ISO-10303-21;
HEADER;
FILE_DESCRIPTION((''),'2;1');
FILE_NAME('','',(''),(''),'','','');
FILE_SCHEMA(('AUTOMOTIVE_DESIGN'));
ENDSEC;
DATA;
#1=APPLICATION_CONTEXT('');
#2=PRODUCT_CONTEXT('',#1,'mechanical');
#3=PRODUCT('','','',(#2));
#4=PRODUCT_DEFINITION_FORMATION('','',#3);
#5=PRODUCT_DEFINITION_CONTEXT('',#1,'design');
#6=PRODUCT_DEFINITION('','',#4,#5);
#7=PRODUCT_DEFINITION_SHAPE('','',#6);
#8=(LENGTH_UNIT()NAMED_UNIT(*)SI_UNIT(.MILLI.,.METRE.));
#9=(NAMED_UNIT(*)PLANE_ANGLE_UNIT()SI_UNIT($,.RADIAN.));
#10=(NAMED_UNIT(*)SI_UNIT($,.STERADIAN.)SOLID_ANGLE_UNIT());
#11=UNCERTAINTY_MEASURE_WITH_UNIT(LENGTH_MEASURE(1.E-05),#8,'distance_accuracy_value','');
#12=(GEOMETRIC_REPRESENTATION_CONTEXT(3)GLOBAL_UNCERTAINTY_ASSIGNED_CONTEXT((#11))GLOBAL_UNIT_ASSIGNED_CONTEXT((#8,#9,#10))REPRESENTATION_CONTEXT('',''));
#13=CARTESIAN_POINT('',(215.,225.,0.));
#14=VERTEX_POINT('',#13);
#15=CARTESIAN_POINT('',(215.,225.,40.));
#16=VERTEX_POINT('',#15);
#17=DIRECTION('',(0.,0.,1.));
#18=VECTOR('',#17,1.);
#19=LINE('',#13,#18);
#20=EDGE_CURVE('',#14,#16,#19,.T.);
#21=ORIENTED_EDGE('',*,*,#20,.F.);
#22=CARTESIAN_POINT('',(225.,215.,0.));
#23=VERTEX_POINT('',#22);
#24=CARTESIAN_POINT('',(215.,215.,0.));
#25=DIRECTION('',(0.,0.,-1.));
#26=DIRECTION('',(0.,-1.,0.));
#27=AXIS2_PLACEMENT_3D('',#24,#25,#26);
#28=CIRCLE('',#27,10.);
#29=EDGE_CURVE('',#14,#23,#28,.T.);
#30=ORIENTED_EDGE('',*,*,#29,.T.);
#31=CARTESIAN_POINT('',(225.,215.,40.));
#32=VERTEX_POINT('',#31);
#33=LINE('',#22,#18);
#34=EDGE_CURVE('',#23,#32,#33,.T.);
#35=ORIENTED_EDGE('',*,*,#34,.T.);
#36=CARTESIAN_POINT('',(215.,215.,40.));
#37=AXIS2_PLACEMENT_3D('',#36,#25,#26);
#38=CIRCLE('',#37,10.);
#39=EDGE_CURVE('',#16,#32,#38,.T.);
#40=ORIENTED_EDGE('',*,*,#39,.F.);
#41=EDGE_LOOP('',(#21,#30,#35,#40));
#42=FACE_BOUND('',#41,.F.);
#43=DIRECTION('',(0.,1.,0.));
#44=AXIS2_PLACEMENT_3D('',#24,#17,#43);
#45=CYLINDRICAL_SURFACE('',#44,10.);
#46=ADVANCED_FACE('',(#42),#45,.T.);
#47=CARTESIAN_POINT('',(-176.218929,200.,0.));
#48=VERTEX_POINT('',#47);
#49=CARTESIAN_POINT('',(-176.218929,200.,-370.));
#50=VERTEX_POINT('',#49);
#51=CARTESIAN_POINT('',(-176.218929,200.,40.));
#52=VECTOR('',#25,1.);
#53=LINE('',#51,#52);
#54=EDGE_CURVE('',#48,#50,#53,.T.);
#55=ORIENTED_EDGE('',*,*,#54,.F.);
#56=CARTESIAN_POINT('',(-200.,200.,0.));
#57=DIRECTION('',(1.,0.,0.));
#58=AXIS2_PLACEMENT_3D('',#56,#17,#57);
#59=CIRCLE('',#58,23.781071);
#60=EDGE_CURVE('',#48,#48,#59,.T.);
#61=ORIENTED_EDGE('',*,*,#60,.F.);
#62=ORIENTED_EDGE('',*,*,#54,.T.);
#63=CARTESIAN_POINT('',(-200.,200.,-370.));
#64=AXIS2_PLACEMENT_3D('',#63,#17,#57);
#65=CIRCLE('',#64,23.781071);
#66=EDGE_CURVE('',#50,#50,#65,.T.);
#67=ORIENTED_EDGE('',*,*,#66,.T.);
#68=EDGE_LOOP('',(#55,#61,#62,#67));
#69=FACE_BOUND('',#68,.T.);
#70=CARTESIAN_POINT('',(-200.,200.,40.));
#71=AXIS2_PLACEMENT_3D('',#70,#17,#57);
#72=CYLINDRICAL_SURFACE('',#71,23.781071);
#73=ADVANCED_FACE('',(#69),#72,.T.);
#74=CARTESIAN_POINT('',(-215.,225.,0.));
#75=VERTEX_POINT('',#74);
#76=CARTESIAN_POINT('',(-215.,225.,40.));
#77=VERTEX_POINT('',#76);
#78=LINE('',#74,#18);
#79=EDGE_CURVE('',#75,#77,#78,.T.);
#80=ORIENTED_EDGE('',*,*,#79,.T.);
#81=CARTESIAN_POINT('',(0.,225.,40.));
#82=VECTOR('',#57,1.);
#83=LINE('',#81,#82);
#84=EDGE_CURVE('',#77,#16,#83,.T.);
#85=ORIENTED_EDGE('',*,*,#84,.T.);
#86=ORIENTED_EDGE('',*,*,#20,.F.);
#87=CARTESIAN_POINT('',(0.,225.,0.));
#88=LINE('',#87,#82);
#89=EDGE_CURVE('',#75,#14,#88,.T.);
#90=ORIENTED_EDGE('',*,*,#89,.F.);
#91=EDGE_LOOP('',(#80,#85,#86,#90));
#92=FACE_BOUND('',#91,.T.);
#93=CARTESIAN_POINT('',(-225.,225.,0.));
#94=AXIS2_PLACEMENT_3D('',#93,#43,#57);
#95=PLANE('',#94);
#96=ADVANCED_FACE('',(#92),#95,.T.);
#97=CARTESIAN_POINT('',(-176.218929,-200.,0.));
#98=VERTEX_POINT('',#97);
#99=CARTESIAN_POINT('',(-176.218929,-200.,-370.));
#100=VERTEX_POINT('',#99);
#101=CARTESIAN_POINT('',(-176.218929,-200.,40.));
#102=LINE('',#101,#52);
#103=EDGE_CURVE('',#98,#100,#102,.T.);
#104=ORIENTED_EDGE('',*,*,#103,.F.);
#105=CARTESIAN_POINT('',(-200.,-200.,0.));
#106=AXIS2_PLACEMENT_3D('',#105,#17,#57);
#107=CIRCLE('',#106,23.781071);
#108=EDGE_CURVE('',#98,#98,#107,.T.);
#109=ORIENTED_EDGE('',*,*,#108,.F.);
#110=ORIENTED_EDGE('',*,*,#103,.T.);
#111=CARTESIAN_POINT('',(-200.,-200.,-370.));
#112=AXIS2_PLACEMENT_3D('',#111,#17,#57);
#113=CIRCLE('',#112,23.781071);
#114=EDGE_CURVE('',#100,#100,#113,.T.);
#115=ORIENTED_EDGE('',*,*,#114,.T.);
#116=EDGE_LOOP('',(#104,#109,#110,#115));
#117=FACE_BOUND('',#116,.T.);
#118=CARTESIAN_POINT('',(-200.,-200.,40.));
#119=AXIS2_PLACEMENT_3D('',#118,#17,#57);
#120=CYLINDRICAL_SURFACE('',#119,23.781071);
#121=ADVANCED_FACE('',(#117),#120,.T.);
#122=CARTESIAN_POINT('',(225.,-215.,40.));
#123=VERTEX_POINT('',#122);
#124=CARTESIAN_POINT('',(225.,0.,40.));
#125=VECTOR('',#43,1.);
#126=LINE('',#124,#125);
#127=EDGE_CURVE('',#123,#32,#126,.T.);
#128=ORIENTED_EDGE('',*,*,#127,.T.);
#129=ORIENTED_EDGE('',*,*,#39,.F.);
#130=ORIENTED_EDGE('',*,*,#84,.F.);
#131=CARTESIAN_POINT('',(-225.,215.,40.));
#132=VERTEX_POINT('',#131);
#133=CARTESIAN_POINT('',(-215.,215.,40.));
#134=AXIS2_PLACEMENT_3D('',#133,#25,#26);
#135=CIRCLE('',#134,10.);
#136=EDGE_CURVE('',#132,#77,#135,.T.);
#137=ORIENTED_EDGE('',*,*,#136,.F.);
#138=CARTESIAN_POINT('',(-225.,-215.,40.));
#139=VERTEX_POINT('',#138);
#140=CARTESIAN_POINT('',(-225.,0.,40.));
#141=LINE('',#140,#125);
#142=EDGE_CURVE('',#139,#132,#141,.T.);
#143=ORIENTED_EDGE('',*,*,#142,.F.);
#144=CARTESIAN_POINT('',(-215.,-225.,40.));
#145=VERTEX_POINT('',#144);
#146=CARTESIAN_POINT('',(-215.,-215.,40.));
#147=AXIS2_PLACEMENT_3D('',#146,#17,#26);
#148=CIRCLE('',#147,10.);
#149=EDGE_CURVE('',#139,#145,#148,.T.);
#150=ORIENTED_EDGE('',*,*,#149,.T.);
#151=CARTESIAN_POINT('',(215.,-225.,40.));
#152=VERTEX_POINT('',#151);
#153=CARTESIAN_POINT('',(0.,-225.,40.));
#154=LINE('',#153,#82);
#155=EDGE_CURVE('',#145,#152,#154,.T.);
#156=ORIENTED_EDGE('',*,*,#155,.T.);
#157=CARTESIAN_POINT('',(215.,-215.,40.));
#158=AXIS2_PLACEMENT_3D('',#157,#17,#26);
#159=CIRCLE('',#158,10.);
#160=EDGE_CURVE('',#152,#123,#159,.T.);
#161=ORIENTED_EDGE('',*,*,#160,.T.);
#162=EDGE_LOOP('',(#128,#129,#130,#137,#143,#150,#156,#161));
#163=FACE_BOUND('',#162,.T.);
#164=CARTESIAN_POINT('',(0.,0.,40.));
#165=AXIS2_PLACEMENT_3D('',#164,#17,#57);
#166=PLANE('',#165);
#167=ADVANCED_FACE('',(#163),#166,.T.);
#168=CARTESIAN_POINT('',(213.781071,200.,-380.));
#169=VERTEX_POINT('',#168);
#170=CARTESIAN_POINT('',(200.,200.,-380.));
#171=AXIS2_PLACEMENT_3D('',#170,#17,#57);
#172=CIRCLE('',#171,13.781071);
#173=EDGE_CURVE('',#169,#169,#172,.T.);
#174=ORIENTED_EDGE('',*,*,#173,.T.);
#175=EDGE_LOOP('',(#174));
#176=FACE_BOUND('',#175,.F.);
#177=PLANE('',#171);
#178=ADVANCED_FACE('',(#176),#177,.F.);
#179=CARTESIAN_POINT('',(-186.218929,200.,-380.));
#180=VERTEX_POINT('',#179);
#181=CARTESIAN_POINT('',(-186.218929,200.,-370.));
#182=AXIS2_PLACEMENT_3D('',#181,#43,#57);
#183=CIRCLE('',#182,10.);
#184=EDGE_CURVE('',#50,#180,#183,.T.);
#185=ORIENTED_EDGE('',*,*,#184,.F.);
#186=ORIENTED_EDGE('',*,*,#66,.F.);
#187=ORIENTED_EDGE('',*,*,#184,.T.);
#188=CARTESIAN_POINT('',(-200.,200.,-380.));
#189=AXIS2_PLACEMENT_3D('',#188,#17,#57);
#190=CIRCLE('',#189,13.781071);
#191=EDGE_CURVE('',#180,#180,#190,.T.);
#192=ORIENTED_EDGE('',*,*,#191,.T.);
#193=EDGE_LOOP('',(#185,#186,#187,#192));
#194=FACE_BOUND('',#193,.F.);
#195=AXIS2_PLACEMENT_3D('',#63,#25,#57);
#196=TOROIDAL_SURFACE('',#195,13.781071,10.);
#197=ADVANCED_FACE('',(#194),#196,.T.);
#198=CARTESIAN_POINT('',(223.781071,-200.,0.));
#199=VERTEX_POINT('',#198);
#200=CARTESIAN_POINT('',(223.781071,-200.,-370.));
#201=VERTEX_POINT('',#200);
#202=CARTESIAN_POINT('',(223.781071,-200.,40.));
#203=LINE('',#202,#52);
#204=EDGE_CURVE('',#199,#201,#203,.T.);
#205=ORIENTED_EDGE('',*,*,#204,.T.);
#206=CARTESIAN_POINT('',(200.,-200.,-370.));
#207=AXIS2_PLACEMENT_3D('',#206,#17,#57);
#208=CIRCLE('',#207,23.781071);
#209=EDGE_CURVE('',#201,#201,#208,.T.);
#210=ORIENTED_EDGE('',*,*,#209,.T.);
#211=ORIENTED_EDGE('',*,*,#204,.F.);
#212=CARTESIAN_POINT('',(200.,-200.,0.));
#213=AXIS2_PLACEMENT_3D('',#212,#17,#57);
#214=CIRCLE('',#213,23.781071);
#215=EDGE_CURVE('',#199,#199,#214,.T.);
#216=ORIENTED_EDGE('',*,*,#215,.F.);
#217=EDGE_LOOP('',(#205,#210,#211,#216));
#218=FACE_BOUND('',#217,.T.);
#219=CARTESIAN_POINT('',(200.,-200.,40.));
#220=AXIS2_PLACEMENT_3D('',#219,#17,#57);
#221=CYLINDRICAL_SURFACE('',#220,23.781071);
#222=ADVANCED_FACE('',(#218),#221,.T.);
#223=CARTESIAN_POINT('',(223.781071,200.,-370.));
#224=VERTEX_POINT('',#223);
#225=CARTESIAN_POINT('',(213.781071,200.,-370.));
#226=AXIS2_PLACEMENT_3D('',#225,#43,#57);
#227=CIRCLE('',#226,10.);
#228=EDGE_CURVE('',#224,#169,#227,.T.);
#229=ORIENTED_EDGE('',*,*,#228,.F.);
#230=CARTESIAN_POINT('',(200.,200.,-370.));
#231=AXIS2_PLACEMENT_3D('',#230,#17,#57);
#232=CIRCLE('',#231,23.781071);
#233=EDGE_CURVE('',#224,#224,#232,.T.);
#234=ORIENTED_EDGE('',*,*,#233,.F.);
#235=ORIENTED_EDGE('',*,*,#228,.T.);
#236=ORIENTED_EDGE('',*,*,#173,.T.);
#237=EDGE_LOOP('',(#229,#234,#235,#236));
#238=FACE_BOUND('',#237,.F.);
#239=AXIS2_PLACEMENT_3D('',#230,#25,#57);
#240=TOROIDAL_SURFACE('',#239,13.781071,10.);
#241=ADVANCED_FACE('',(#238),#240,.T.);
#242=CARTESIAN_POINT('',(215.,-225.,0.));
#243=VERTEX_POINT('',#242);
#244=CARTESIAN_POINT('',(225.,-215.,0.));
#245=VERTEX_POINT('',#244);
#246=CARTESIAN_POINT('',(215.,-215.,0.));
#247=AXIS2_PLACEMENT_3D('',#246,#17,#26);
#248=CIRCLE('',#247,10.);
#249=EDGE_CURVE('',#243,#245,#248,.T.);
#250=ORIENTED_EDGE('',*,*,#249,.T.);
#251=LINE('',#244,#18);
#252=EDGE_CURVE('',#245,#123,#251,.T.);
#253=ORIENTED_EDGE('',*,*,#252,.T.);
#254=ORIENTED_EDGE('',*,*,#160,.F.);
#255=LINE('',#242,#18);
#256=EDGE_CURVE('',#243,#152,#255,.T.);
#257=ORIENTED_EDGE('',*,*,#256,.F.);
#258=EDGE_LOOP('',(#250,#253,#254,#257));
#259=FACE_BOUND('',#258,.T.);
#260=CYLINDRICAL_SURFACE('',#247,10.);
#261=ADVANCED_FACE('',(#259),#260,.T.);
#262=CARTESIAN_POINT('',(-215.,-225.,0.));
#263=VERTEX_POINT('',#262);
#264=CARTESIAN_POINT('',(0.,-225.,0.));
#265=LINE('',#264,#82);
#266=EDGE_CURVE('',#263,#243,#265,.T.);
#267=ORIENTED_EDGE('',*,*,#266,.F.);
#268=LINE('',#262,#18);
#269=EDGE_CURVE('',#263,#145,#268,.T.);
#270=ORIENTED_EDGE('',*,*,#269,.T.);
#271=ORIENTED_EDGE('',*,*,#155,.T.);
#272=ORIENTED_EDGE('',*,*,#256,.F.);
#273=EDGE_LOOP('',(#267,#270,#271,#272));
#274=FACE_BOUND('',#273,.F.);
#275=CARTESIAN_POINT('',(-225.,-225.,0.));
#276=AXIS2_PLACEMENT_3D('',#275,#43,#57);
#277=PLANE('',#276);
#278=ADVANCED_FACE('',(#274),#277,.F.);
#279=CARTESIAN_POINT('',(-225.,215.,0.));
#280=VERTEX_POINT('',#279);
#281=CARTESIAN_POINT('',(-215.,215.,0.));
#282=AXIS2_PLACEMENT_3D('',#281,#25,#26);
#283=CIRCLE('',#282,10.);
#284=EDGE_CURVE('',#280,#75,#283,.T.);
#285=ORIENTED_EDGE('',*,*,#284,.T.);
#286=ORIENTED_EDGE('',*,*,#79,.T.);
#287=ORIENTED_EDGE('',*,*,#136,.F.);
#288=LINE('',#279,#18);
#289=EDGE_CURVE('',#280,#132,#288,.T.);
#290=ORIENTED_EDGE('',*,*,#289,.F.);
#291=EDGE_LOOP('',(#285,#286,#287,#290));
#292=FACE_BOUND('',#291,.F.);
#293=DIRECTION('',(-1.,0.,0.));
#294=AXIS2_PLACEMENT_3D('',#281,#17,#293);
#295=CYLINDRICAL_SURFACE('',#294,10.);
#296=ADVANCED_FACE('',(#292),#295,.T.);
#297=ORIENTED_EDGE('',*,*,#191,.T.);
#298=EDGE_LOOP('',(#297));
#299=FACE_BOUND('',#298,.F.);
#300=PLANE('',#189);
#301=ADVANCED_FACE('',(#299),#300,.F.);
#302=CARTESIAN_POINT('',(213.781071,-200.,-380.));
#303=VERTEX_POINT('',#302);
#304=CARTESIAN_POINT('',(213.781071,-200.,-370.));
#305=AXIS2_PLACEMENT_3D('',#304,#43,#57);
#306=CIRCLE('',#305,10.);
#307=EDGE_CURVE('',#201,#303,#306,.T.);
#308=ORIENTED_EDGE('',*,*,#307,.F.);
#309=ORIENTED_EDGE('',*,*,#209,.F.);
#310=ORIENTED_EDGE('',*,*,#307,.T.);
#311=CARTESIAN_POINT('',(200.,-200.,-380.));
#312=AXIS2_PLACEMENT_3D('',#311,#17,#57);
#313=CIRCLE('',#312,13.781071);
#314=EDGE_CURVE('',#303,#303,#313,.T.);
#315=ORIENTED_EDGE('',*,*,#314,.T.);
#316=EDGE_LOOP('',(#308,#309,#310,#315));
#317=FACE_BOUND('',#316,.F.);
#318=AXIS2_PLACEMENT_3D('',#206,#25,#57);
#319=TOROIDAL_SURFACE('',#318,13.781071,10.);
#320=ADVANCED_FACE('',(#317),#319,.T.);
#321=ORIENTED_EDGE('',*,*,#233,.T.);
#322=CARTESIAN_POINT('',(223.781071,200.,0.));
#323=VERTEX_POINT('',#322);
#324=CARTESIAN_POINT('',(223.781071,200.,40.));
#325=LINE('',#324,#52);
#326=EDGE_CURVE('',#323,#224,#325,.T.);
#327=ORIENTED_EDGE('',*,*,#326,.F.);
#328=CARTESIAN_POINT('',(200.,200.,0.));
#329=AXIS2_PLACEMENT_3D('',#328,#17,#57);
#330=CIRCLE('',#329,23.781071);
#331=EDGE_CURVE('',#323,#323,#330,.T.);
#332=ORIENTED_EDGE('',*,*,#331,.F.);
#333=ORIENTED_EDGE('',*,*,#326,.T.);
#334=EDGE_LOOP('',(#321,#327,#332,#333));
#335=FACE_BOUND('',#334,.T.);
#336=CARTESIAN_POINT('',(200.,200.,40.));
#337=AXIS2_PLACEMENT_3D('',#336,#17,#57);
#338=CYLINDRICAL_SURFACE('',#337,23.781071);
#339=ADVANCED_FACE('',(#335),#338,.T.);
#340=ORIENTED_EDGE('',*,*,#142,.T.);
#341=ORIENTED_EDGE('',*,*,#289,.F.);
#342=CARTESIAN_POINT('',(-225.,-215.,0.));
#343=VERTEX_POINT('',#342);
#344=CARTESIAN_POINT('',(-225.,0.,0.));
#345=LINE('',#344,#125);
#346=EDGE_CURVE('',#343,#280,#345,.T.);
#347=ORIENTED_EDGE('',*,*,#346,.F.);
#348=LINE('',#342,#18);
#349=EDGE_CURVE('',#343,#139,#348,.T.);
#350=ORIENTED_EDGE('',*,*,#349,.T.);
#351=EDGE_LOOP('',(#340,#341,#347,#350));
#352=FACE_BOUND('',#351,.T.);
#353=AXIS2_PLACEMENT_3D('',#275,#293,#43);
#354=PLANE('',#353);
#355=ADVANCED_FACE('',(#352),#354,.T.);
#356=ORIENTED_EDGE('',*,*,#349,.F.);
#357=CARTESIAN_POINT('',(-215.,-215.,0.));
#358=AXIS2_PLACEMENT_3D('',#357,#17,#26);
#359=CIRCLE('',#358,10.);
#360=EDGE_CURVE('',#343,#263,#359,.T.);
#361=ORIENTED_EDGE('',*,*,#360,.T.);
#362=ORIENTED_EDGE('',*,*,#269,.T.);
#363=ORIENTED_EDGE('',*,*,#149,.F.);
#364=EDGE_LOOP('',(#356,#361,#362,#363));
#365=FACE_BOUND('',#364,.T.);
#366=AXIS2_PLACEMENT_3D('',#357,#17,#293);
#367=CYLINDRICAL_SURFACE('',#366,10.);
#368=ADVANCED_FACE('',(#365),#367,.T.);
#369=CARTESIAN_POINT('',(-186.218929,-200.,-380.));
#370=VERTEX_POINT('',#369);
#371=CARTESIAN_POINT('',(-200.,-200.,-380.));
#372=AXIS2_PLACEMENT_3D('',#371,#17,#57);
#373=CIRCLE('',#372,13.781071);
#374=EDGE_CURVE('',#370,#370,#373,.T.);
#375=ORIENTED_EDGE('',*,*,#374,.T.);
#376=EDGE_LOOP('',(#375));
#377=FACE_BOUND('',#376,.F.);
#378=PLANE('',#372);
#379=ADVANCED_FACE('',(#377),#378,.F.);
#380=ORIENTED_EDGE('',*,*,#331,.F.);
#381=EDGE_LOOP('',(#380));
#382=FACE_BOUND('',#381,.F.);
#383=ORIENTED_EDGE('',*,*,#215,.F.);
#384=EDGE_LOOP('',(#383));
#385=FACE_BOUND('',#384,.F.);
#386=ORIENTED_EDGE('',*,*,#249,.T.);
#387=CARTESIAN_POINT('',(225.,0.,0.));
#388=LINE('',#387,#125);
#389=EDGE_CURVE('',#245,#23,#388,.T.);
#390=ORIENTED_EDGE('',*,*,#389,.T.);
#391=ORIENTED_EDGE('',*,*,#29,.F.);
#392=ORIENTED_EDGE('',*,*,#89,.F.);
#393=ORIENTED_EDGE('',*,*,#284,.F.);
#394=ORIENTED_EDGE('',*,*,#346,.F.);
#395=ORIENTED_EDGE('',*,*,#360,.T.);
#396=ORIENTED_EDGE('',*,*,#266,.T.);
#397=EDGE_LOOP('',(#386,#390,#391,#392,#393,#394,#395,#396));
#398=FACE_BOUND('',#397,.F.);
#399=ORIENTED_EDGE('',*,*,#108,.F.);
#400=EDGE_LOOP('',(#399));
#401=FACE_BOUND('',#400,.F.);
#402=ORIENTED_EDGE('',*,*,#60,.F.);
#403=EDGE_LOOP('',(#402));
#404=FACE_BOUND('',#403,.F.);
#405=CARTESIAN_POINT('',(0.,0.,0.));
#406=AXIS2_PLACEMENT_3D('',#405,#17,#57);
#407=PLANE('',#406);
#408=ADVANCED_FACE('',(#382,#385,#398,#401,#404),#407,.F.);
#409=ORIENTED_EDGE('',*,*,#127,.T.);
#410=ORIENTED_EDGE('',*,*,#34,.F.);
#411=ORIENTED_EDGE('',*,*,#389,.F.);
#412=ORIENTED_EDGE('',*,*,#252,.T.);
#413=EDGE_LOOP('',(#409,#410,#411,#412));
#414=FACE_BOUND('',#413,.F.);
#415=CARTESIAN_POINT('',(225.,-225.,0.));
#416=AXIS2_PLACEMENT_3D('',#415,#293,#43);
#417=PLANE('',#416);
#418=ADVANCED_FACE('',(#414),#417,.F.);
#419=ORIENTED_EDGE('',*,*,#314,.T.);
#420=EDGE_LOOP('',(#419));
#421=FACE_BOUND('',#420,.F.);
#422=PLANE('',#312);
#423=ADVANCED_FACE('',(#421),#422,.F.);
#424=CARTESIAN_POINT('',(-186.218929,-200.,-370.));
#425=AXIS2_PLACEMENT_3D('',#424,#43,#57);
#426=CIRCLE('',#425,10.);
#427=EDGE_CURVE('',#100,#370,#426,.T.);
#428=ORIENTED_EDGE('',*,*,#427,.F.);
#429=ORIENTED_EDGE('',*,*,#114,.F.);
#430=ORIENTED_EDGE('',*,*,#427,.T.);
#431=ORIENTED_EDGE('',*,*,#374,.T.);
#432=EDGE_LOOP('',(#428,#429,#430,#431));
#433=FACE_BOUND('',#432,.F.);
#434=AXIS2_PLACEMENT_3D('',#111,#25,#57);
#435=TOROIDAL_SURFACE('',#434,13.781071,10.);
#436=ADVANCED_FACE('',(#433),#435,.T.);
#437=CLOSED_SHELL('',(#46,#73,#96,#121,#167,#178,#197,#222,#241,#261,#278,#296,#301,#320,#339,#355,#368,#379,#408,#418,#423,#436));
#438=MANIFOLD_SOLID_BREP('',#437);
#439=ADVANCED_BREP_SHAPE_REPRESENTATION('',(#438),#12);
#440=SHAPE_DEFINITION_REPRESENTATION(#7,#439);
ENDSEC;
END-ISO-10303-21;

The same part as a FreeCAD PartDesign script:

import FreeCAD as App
import Part
import Sketcher

V = App.Vector
Q = App.Units.Quantity


def edges_at(feature, points):
    """Names of the edges that pass closest to the given points."""
    edges = feature.Shape.Edges
    near = lambda p: min(range(len(edges)), key=lambda i: edges[i].distToShape(Part.Vertex(*p))[0])
    return sorted({f"Edge{near(p) + 1}" for p in points})


def add_polygon(sketch, points):
    """Adds a closed chain of lines whose ends are joined by coincident constraints."""
    first, n = sketch.GeometryCount, len(points)
    for a, b in zip(points, points[1:] + points[:1]):
        sketch.addGeometry(Part.LineSegment(App.Vector(*a, 0), App.Vector(*b, 0)), False)
    for i in range(n):
        sketch.addConstraint(Sketcher.Constraint("Coincident", first + i, 2, first + (i + 1) % n, 1))

doc = App.newDocument("Part")
body = doc.addObject("PartDesign::Body", "Body")

sketch1 = doc.addObject("Sketcher::SketchObject", "Sketch")
body.addObject(sketch1)
sketch1.AttachmentSupport = (doc.XY_Plane, [""])
sketch1.MapMode = "FlatFace"
add_polygon(sketch1, [(-225, 225), (-225, -225), (225, -225), (225, 225)])
sketch1.addGeometry(Part.Circle(V(-200, -200, 0), V(0, 0, 1), 23.781071), False)
sketch1.addGeometry(Part.Circle(V(200, -200, 0), V(0, 0, 1), 23.781071), False)
sketch1.addGeometry(Part.Circle(V(-200, 200, 0), V(0, 0, 1), 23.781071), False)
sketch1.addGeometry(Part.Circle(V(200, 200, 0), V(0, 0, 1), 23.781071), False)
sketch1.addConstraint([
    Sketcher.Constraint("Vertical", 0),
    Sketcher.Constraint("Horizontal", 1),
    Sketcher.Constraint("Vertical", 2),
    Sketcher.Constraint("Horizontal", 3),
    Sketcher.Constraint("Equal", 4, 5),
    Sketcher.Constraint("Equal", 5, 6),
    Sketcher.Constraint("Equal", 6, 7),
    Sketcher.Constraint("Symmetric", 5, 3, 6, 3, -1, 1),
    Sketcher.Constraint("Symmetric", 4, 3, 7, 3, -1, 1),
    Sketcher.Constraint("Symmetric", 0, 2, 2, 2, -1, 1),
    Sketcher.Constraint("Symmetric", 4, 3, 5, 3, -2),
    Sketcher.Constraint("Equal", 3, 0),
    Sketcher.Constraint("DistanceX", 1, 1, 1, 2, Q("450 mm")),
    Sketcher.Constraint("DistanceX", 4, 3, -1, 1, Q("200 mm")),
    Sketcher.Constraint("DistanceY", 4, 3, -1, 1, Q("200 mm")),
    Sketcher.Constraint("Diameter", 4, Q("47.562142 mm")),
])
pad1 = doc.addObject("PartDesign::Pad", "Pad")
body.addObject(pad1)
pad1.Profile = sketch1
pad1.Length = 40

sketch2 = doc.addObject("Sketcher::SketchObject", "Sketch001")
body.addObject(sketch2)
sketch2.AttachmentSupport = (doc.XY_Plane, [""])
sketch2.MapMode = "FlatFace"
sketch2.AttachmentOffset = App.Placement(V(0, 0, 40), App.Rotation())
sketch2.addGeometry([
    Part.Circle(V(-200, -200, 0), V(0, 0, 1), 23.781071),
    Part.Circle(V(-200, 200, 0), V(0, 0, 1), 23.781071),
    Part.Circle(V(200, 200, 0), V(0, 0, 1), 23.781071),
    Part.Circle(V(200, -200, 0), V(0, 0, 1), 23.781071),
], False)
sketch2.addConstraint([
    Sketcher.Constraint("Equal", 0, 1),
    Sketcher.Constraint("Equal", 1, 2),
    Sketcher.Constraint("Equal", 2, 3),
    Sketcher.Constraint("Symmetric", 0, 3, 2, 3, -1, 1),
    Sketcher.Constraint("Symmetric", 1, 3, 3, 3, -1, 1),
    Sketcher.Constraint("Symmetric", 1, 3, 2, 3, -2),
    Sketcher.Constraint("DistanceX", 0, 3, -1, 1, Q("200 mm")),
    Sketcher.Constraint("DistanceY", 0, 3, -1, 1, Q("200 mm")),
    Sketcher.Constraint("Diameter", 0, Q("47.562142 mm")),
])
pad2 = doc.addObject("PartDesign::Pad", "Pad001")
body.addObject(pad2)
pad2.Profile = sketch2
pad2.Length = 420
pad2.Reversed = True
doc.recompute()

fillet = doc.addObject("PartDesign::Fillet", "Fillet")
body.addObject(fillet)
fillet.Base = (pad2, edges_at(pad2, [
    (-223.781, -200, -380),
    (176.219, -200, -380),
    (176.219, 200, -380),
    (-223.781, 200, -380),
]))
fillet.Radius = 10
doc.recompute()

fillet2 = doc.addObject("PartDesign::Fillet", "Fillet001")
body.addObject(fillet2)
fillet2.Base = (fillet, edges_at(fillet, [
    (225, -225, 20),
    (225, 225, 20),
    (-225, -225, 20),
    (-225, 225, 20),
]))
fillet2.Radius = 10

doc.recompute()
